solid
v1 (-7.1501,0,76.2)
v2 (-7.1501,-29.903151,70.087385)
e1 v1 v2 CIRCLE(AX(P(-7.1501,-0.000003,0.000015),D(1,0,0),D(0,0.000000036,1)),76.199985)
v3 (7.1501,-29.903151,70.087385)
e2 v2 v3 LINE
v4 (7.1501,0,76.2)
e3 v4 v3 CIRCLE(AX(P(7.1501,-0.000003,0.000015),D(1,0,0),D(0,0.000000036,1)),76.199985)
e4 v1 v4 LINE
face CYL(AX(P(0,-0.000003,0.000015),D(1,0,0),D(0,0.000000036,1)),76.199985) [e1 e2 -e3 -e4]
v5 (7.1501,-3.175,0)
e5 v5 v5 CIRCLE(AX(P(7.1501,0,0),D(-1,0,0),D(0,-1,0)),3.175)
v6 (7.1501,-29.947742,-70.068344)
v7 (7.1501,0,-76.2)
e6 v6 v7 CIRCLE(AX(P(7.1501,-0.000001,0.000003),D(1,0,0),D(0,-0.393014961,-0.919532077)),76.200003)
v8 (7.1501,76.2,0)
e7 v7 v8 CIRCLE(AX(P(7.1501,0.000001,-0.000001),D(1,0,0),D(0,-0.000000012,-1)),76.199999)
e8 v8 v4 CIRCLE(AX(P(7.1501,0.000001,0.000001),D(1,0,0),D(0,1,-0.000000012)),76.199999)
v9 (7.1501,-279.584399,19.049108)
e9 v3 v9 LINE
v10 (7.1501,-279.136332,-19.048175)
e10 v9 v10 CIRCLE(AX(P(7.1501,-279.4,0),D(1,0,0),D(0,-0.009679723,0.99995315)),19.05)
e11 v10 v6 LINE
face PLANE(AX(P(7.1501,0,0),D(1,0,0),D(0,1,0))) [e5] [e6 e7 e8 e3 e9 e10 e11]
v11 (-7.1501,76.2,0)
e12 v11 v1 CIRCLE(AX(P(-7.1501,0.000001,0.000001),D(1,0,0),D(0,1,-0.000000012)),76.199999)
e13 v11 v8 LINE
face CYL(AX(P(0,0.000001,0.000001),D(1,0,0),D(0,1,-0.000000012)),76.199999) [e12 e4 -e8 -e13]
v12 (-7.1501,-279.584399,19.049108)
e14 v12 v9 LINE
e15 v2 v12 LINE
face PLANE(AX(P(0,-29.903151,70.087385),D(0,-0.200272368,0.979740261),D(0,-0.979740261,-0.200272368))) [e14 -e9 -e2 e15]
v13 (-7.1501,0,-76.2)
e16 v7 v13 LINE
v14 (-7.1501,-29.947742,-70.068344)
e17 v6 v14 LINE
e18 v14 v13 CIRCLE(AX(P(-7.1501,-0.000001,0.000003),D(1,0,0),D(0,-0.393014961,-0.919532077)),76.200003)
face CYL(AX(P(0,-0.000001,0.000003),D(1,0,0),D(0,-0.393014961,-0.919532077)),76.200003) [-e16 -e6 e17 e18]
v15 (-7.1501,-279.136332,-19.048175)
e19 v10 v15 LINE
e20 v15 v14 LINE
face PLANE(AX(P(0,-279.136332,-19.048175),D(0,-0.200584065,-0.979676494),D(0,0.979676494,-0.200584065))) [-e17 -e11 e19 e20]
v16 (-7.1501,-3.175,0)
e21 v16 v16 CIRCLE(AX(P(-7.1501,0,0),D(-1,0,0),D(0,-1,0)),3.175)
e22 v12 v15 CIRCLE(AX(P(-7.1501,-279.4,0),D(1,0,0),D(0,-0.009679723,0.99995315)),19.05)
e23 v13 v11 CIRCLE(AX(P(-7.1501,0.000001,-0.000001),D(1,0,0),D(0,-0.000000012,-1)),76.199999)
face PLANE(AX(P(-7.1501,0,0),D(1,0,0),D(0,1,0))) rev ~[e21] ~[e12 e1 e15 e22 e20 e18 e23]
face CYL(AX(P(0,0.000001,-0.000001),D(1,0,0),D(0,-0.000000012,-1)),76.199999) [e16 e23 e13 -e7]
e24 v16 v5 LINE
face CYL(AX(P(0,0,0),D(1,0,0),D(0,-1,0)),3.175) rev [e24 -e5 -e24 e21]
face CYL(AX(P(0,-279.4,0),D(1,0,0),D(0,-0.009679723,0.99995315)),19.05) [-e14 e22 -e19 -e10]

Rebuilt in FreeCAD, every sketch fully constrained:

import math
import FreeCAD as App
import Part
import Sketcher
from FreeCAD import Vector
Q = App.Units.Quantity

doc = App.newDocument("Part")
body = doc.addObject("PartDesign::Body", "Body")

sketch1 = doc.addObject("Sketcher::SketchObject", "Sketch")
body.addObject(sketch1)
sketch1.AttachmentSupport = (doc.YZ_Plane, [""])
sketch1.MapMode = "FlatFace"
sketch1.addGeometry([
    Part.ArcOfCircle(Part.Circle(Vector(0, 0, 0), Vector(0, 0, 1), 76.2), math.radians(-90), math.radians(0)),
    Part.ArcOfCircle(Part.Circle(Vector(0, 0, 0), Vector(0, 0, 1), 76.2), math.radians(0), math.radians(90)),
    Part.ArcOfCircle(Part.Circle(Vector(0, 0, 0), Vector(0, 0, 1), 76.2), math.radians(90), math.radians(113)),
    Part.LineSegment(Vector(-29.9, 70.1, 0), Vector(-279.6, 19, 0)),
    Part.ArcOfCircle(Part.Circle(Vector(-279.4, 0, 0), Vector(0, 0, 1), 19.1), math.radians(91), math.radians(271)),
    Part.LineSegment(Vector(-279.1, -19, 0), Vector(-29.9, -70.1, 0)),
    Part.ArcOfCircle(Part.Circle(Vector(0, 0, 0), Vector(0, 0, 1), 76.2), math.radians(-113), math.radians(-90)),
    Part.Circle(Vector(0, 0, 0), Vector(0, 0, 1), 3.2),
], False)
sketch1.addConstraint([
    Sketcher.Constraint("Tangent", 0, 2, 1, 1),
    Sketcher.Constraint("Tangent", 1, 2, 2, 1),
    Sketcher.Constraint("Coincident", 2, 2, 3, 1),
    Sketcher.Constraint("Coincident", 3, 2, 4, 1),
    Sketcher.Constraint("Coincident", 4, 2, 5, 1),
    Sketcher.Constraint("Coincident", 5, 2, 6, 1),
    Sketcher.Constraint("Tangent", 6, 2, 0, 1),
    Sketcher.Constraint("Coincident", 0, 3, -1, 1),
    Sketcher.Constraint("Coincident", 7, 3, -1, 1),
    Sketcher.Constraint("Equal", 0, 1),
    Sketcher.Constraint("PointOnObject", 4, 3, -1),
    Sketcher.Constraint("PointOnObject", 0, 2, -1),
    Sketcher.Constraint("PointOnObject", 1, 2, -2),
    Sketcher.Constraint("PointOnObject", 6, 2, -2),
    Sketcher.Constraint("Radius", 0, Q("3 in")),
    Sketcher.Constraint("Radius", 6, Q("3.0000001 in")),
    Sketcher.Constraint("Diameter", 7, Q("0.25 in")),
    Sketcher.Constraint("Radius", 4, Q("0.75 in")),
    Sketcher.Constraint("DistanceX", 4, 3, -1, 1, Q("11 in")),
    Sketcher.Constraint("Radius", 2, 76.199985),
    Sketcher.Constraint("DistanceX", 3, 2, -1, 1, 279.584399),
    Sketcher.Constraint("DistanceX", 2, 2, -1, 1, 29.903151),
    Sketcher.Constraint("DistanceX", 4, 2, -1, 1, 279.136332),
    Sketcher.Constraint("DistanceX", 5, 2, 6, 3, 29.947741),
])
pad1 = doc.addObject("PartDesign::Pad", "Pad")
body.addObject(pad1)
pad1.Profile = sketch1
pad1.Length = Q("0.563 in")
pad1.Midplane = True

doc.recompute()
